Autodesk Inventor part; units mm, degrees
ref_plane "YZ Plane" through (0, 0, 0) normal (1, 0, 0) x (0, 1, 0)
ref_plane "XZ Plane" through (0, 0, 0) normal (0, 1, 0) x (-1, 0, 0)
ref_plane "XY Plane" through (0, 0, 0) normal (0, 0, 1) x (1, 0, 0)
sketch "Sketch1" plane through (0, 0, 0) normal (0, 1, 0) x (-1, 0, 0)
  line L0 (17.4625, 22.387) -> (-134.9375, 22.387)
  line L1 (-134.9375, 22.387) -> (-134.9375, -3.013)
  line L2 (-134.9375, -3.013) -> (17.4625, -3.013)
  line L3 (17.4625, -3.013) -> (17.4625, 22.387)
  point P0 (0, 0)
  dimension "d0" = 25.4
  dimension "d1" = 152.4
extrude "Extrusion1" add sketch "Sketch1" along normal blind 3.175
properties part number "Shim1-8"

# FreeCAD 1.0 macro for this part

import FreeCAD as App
import Part
import Sketcher
from FreeCAD import Vector
Q = App.Units.Quantity


def add_polygon(sketch, points):
    """Adds a closed chain of lines whose ends are joined by coincident constraints."""
    first, n = sketch.GeometryCount, len(points)
    for a, b in zip(points, points[1:] + points[:1]):
        sketch.addGeometry(Part.LineSegment(App.Vector(*a, 0), App.Vector(*b, 0)), False)
    for i in range(n):
        sketch.addConstraint(Sketcher.Constraint("Coincident", first + i, 2, first + (i + 1) % n, 1))

doc = App.newDocument("Part")
body = doc.addObject("PartDesign::Body", "Body")

# Sketch on XZ plane
sketch1 = doc.addObject("Sketcher::SketchObject", "Sketch")
body.addObject(sketch1)
sketch1.AttachmentSupport = (doc.XZ_Plane, [""])
sketch1.MapMode = "FlatFace"
add_polygon(sketch1, [(-17, -3), (-17, 22), (135, 22), (135, -3)])  # lines 0-3
sketch1.addConstraint(Sketcher.Constraint("Vertical", 0))
sketch1.addConstraint(Sketcher.Constraint("Horizontal", 1))
sketch1.addConstraint(Sketcher.Constraint("Vertical", 2))
sketch1.addConstraint(Sketcher.Constraint("Horizontal", 3))
sketch1.addConstraint(Sketcher.Constraint("DistanceX", 1, 1, 1, 2, Q("6 in")))
sketch1.addConstraint(Sketcher.Constraint("DistanceY", 0, 1, 0, 2, Q("1 in")))
sketch1.addConstraint(Sketcher.Constraint("DistanceX", 0, 2, -1, 1, Q("0.6875 in")))
sketch1.addConstraint(Sketcher.Constraint("DistanceY", -1, 1, 0, 2, 22.387))
pad1 = doc.addObject("PartDesign::Pad", "Pad")
body.addObject(pad1)
pad1.Profile = sketch1
pad1.Length = Q("0.125 in")
pad1.Reversed = True

doc.recompute()
